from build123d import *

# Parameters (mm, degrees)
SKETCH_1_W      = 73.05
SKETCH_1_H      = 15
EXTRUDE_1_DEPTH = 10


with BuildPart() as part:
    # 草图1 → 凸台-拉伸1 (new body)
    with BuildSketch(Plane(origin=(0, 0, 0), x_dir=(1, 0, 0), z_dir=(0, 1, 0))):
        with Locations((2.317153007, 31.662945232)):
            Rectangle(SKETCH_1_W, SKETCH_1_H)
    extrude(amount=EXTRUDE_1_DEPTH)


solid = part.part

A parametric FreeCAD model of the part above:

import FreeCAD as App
import Part
import Sketcher
from FreeCAD import Vector

doc = App.newDocument("Part")
body = doc.addObject("PartDesign::Body", "Body")

sketch1 = body.newObject("Sketcher::SketchObject", "Sketch")
sketch1.AttachmentSupport = (doc.getObject("XZ_Plane"), [""])
sketch1.MapMode = "FlatFace"
sketch1.addGeometry(Part.LineSegment(Vector(-34, -39, 0), Vector(-34, -24, 0)), False)
sketch1.addGeometry(Part.LineSegment(Vector(-34, -24, 0), Vector(39, -24, 0)), False)
sketch1.addGeometry(Part.LineSegment(Vector(39, -24, 0), Vector(39, -39, 0)), False)
sketch1.addGeometry(Part.LineSegment(Vector(39, -39, 0), Vector(-34, -39, 0)), False)
sketch1.addConstraint(Sketcher.Constraint("Coincident", 0, 2, 1, 1))
sketch1.addConstraint(Sketcher.Constraint("Coincident", 1, 2, 2, 1))
sketch1.addConstraint(Sketcher.Constraint("Coincident", 2, 2, 3, 1))
sketch1.addConstraint(Sketcher.Constraint("Coincident", 3, 2, 0, 1))
sketch1.addConstraint(Sketcher.Constraint("Vertical", 0))
sketch1.addConstraint(Sketcher.Constraint("Horizontal", 1))
sketch1.addConstraint(Sketcher.Constraint("Vertical", 2))
sketch1.addConstraint(Sketcher.Constraint("Horizontal", 3))
sketch1.addConstraint(Sketcher.Constraint("DistanceY", 0, 1, 0, 2, 15.0))
sketch1.addConstraint(Sketcher.Constraint("DistanceX", 1, 1, 1, 2, 73.05))
sketch1.addConstraint(Sketcher.Constraint("DistanceX", 0, 2, -1, 1, 34.207847))
sketch1.addConstraint(Sketcher.Constraint("DistanceY", 0, 2, -1, 1, 24.162945))
pad1 = body.newObject("PartDesign::Pad", "Pad")
pad1.Profile = sketch1
pad1.Length = 10
pad1.Reversed = True

doc.recompute()
